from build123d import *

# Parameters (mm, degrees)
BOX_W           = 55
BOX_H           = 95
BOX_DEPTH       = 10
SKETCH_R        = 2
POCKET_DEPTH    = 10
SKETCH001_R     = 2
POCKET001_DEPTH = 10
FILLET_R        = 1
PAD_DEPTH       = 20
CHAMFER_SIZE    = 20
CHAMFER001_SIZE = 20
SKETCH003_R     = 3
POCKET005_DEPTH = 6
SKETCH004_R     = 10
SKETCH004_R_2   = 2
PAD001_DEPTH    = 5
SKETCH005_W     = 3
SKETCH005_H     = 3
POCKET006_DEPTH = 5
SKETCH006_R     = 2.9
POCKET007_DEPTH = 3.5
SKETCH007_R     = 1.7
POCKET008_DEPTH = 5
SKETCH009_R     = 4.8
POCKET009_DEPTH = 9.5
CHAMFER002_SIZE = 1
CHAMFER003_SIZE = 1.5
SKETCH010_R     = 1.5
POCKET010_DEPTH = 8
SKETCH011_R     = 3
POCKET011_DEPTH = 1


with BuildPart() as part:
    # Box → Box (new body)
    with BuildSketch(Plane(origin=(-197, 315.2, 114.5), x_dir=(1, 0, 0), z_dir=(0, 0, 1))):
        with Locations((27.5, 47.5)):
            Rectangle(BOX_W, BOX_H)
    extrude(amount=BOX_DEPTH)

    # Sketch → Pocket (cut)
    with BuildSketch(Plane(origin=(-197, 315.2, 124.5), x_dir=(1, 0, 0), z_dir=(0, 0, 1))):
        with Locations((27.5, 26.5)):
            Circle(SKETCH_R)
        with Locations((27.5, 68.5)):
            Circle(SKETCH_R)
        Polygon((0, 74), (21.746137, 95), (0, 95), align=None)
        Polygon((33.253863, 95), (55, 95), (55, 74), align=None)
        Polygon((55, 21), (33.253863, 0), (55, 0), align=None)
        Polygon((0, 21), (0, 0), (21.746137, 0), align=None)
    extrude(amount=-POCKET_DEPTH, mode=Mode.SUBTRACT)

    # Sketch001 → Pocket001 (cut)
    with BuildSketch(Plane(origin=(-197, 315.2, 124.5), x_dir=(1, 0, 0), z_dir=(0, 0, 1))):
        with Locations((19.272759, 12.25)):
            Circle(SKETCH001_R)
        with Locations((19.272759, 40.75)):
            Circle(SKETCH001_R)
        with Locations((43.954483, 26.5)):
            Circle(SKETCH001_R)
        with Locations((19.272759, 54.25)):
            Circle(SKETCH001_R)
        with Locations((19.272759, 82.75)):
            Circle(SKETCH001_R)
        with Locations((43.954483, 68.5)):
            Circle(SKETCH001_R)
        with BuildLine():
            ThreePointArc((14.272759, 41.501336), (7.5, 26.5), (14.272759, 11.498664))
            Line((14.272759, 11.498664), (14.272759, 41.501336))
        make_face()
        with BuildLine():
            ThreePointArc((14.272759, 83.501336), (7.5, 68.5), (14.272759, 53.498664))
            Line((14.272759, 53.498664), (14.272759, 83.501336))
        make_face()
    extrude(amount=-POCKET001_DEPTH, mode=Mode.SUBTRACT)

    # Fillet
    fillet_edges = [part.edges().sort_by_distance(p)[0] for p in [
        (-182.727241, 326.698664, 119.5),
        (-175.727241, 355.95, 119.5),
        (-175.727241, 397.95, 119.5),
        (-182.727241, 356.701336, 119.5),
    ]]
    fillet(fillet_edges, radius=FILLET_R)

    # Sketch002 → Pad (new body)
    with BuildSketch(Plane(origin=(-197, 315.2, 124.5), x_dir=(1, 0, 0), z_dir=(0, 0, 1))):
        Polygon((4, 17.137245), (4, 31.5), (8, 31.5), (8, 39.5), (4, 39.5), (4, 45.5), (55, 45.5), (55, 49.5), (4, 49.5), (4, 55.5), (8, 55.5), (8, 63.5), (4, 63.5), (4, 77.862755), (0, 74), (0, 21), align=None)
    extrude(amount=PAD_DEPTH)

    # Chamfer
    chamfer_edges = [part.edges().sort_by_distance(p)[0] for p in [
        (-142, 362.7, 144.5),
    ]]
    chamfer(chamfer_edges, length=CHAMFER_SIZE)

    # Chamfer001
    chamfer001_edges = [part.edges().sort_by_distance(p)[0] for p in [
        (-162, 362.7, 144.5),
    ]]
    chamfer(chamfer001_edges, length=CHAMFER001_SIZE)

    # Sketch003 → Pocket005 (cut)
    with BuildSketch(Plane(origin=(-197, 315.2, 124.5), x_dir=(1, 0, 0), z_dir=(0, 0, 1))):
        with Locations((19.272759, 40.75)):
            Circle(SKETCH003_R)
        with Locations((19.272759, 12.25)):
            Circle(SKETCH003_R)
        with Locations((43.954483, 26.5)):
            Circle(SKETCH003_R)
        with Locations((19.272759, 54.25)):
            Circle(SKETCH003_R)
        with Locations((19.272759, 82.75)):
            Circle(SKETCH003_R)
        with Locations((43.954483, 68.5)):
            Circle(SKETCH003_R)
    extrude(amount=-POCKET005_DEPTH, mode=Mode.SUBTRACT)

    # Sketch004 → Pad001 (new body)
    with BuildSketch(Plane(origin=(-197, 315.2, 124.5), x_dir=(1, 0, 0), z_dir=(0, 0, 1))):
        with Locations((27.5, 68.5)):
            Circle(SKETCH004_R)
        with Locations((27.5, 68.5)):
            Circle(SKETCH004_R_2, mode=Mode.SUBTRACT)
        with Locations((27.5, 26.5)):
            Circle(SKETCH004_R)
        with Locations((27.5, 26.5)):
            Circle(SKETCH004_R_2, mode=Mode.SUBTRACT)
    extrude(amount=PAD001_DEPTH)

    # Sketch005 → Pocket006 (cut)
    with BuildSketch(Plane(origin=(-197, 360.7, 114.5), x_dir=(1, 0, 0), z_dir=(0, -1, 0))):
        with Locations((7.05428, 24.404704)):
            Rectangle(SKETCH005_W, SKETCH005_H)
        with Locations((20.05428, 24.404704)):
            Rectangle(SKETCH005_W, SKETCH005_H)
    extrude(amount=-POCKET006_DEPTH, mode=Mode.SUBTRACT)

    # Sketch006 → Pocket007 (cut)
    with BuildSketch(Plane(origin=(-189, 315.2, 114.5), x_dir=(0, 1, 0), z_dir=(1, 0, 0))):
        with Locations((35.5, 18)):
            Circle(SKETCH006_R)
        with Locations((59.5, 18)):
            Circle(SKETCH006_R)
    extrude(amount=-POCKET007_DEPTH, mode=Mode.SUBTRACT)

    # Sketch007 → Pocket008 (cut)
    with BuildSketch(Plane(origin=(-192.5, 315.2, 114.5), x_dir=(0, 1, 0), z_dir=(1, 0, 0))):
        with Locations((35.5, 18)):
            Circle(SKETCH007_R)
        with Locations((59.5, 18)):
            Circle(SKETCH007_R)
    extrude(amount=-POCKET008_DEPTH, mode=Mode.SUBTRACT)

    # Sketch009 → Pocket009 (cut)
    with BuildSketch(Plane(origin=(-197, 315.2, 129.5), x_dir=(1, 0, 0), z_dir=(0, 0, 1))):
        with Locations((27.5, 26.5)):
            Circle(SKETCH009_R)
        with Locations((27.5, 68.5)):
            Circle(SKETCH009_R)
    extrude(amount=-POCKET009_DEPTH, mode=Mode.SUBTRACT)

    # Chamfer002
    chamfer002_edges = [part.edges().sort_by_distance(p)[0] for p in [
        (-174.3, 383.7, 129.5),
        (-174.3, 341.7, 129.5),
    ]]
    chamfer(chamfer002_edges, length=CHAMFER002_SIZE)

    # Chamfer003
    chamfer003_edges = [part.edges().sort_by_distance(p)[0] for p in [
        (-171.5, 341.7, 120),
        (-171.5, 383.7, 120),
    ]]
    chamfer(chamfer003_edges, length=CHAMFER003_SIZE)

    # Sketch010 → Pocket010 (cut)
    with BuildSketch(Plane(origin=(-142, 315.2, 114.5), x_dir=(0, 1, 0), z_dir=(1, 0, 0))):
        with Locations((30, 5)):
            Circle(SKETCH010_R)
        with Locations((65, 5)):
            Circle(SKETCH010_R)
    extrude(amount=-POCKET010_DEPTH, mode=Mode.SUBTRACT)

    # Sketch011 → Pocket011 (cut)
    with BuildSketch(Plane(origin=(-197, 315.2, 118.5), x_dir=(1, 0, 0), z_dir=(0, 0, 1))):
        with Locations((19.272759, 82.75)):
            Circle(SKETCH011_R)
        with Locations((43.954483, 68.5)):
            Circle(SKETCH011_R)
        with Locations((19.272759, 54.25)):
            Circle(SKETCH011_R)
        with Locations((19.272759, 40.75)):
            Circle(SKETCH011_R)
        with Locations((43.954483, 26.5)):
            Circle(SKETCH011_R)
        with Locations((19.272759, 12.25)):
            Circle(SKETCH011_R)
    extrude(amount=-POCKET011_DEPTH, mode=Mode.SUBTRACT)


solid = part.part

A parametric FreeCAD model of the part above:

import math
import FreeCAD as App
import Part
import Sketcher

V = App.Vector
Q = App.Units.Quantity


def edges_at(feature, points):
    """Names of the edges that pass closest to the given points."""
    edges = feature.Shape.Edges
    near = lambda p: min(range(len(edges)), key=lambda i: edges[i].distToShape(Part.Vertex(*p))[0])
    return sorted({f"Edge{near(p) + 1}" for p in points})

doc = App.newDocument("Part")
body = doc.addObject("PartDesign::Body", "Body")

# Sketch on XY plane
sketch1 = body.newObject("Sketcher::SketchObject", "Sketch")
sketch1.AttachmentSupport = (doc.getObject("XY_Plane"), [""])
sketch1.MapMode = "FlatFace"
sketch1.AttachmentOffset = App.Placement(V(0, 0, 114.5), App.Rotation())
sketch1.addGeometry(Part.LineSegment(V(-197, 410, 0), V(-197, 315, 0)), False)
sketch1.addGeometry(Part.LineSegment(V(-197, 315, 0), V(-142, 315, 0)), False)
sketch1.addGeometry(Part.LineSegment(V(-142, 315, 0), V(-142, 410, 0)), False)
sketch1.addGeometry(Part.LineSegment(V(-142, 410, 0), V(-197, 410, 0)), False)
sketch1.addConstraint(Sketcher.Constraint("Coincident", 0, 2, 1, 1))
sketch1.addConstraint(Sketcher.Constraint("Coincident", 1, 2, 2, 1))
sketch1.addConstraint(Sketcher.Constraint("Coincident", 2, 2, 3, 1))
sketch1.addConstraint(Sketcher.Constraint("Coincident", 3, 2, 0, 1))
sketch1.addConstraint(Sketcher.Constraint("Vertical", 0))
sketch1.addConstraint(Sketcher.Constraint("Horizontal", 1))
sketch1.addConstraint(Sketcher.Constraint("Vertical", 2))
sketch1.addConstraint(Sketcher.Constraint("Horizontal", 3))
sketch1.addConstraint(Sketcher.Constraint("DistanceX", 1, 1, 1, 2, Q("55 mm")))
sketch1.addConstraint(Sketcher.Constraint("DistanceY", 0, 2, 0, 1, Q("95 mm")))
sketch1.addConstraint(Sketcher.Constraint("DistanceX", 0, 2, -1, 1, Q("197 mm")))
sketch1.addConstraint(Sketcher.Constraint("DistanceY", -1, 1, 0, 2, Q("315.2 mm")))
pad1 = body.newObject("PartDesign::Pad", "Pad")
pad1.Profile = sketch1
pad1.Length = 10

# Sketch on XY plane
sketch2 = body.newObject("Sketcher::SketchObject", "Sketch001")
sketch2.AttachmentSupport = (doc.getObject("XY_Plane"), [""])
sketch2.MapMode = "FlatFace"
sketch2.AttachmentOffset = App.Placement(V(0, 0, 124.5), App.Rotation())
sketch2.addGeometry(Part.Circle(V(-169.5, 341.7, 0), V(0, 0, 1), 2), False)
sketch2.addGeometry(Part.Circle(V(-169.5, 383.7, 0), V(0, 0, 1), 2), False)
sketch2.addGeometry(Part.LineSegment(V(-197, 389.2, 0), V(-175.3, 410.2, 0)), False)
sketch2.addGeometry(Part.LineSegment(V(-175.3, 410.2, 0), V(-197, 410.2, 0)), False)
sketch2.addGeometry(Part.LineSegment(V(-197, 410.2, 0), V(-197, 389.2, 0)), False)
sketch2.addGeometry(Part.LineSegment(V(-142, 410.2, 0), V(-163.7, 410.2, 0)), False)
sketch2.addGeometry(Part.LineSegment(V(-163.7, 410.2, 0), V(-142, 389.2, 0)), False)
sketch2.addGeometry(Part.LineSegment(V(-142, 389.2, 0), V(-142, 410.2, 0)), False)
sketch2.addGeometry(Part.LineSegment(V(-142, 336.2, 0), V(-163.7, 315.2, 0)), False)
sketch2.addGeometry(Part.LineSegment(V(-163.7, 315.2, 0), V(-142, 315.2, 0)), False)
sketch2.addGeometry(Part.LineSegment(V(-142, 315.2, 0), V(-142, 336.2, 0)), False)
sketch2.addGeometry(Part.LineSegment(V(-197, 336.2, 0), V(-197, 315.2, 0)), False)
sketch2.addGeometry(Part.LineSegment(V(-197, 315.2, 0), V(-175.3, 315.2, 0)), False)
sketch2.addGeometry(Part.LineSegment(V(-175.3, 315.2, 0), V(-197, 336.2, 0)), False)
sketch2.addConstraint(Sketcher.Constraint("Coincident", 2, 2, 3, 1))
sketch2.addConstraint(Sketcher.Constraint("Coincident", 3, 2, 4, 1))
sketch2.addConstraint(Sketcher.Constraint("Coincident", 4, 2, 2, 1))
sketch2.addConstraint(Sketcher.Constraint("Coincident", 5, 2, 6, 1))
sketch2.addConstraint(Sketcher.Constraint("Coincident", 6, 2, 7, 1))
sketch2.addConstraint(Sketcher.Constraint("Coincident", 7, 2, 5, 1))
sketch2.addConstraint(Sketcher.Constraint("Coincident", 8, 2, 9, 1))
sketch2.addConstraint(Sketcher.Constraint("Coincident", 9, 2, 10, 1))
sketch2.addConstraint(Sketcher.Constraint("Coincident", 10, 2, 8, 1))
sketch2.addConstraint(Sketcher.Constraint("Coincident", 11, 2, 12, 1))
sketch2.addConstraint(Sketcher.Constraint("Coincident", 12, 2, 13, 1))
sketch2.addConstraint(Sketcher.Constraint("Coincident", 13, 2, 11, 1))
sketch2.addConstraint(Sketcher.Constraint("Horizontal", 3))
sketch2.addConstraint(Sketcher.Constraint("Vertical", 4))
sketch2.addConstraint(Sketcher.Constraint("Horizontal", 5))
sketch2.addConstraint(Sketcher.Constraint("Vertical", 7))
sketch2.addConstraint(Sketcher.Constraint("Horizontal", 9))
sketch2.addConstraint(Sketcher.Constraint("Vertical", 10))
sketch2.addConstraint(Sketcher.Constraint("Vertical", 11))
sketch2.addConstraint(Sketcher.Constraint("Horizontal", 12))
sketch2.addConstraint(Sketcher.Constraint("Equal", 0, 1))
sketch2.addConstraint(Sketcher.Constraint("Parallel", 2, 8))
sketch2.addConstraint(Sketcher.Constraint("Parallel", 6, 13))
sketch2.addConstraint(Sketcher.Constraint("Horizontal", 3, 2, 5, 2))
sketch2.addConstraint(Sketcher.Constraint("Horizontal", 4, 2, 6, 2))
sketch2.addConstraint(Sketcher.Constraint("Horizontal", 9, 2, 11, 2))
sketch2.addConstraint(Sketcher.Constraint("Horizontal", 10, 2, 13, 2))
sketch2.addConstraint(Sketcher.Constraint("Vertical", 0, 3, 1, 3))
sketch2.addConstraint(Sketcher.Constraint("Vertical", 5, 2, 8, 2))
sketch2.addConstraint(Sketcher.Constraint("Vertical", 7, 2, 9, 2))
sketch2.addConstraint(Sketcher.Constraint("Vertical", 4, 2, 11, 2))
sketch2.addConstraint(Sketcher.Constraint("Vertical", 2, 2, 12, 2))
sketch2.addConstraint(Sketcher.Constraint("Diameter", 0, Q("4 mm")))
sketch2.addConstraint(Sketcher.Constraint("DistanceY", 4, 2, 4, 1, Q("21 mm")))
sketch2.addConstraint(Sketcher.Constraint("Angle", 2, Q("43.999999 deg")))
sketch2.addConstraint(Sketcher.Constraint("DistanceX", 3, 2, -1, 1, Q("197 mm")))
sketch2.addConstraint(Sketcher.Constraint("DistanceX", 6, 2, -1, 1, Q("142 mm")))
sketch2.addConstraint(Sketcher.Constraint("DistanceY", 0, 3, 1, 3, Q("42 mm")))
sketch2.addConstraint(Sketcher.Constraint("DistanceY", 8, 2, 6, 2, Q("74 mm")))
sketch2.addConstraint(Sketcher.Constraint("DistanceX", 0, 3, -1, 1, Q("169.5 mm")))
sketch2.addConstraint(Sketcher.Constraint("DistanceY", -1, 1, 0, 3, Q("341.7 mm")))
sketch2.addConstraint(Sketcher.Constraint("DistanceY", -1, 1, 2, 2, Q("410.2 mm")))
pocket1 = body.newObject("PartDesign::Pocket", "Pocket")
pocket1.Profile = sketch2
pocket1.Length = 10

# Sketch on XY plane
sketch3 = body.newObject("Sketcher::SketchObject", "Sketch002")
sketch3.AttachmentSupport = (doc.getObject("XY_Plane"), [""])
sketch3.MapMode = "FlatFace"
sketch3.AttachmentOffset = App.Placement(V(0, 0, 124.5), App.Rotation())
sketch3.addGeometry(Part.Circle(V(-177.7, 327.4, 0), V(0, 0, 1), 2), False)
sketch3.addGeometry(Part.Circle(V(-177.7, 355.9, 0), V(0, 0, 1), 2), False)
sketch3.addGeometry(Part.Circle(V(-153, 341.7, 0), V(0, 0, 1), 2), False)
sketch3.addGeometry(Part.Circle(V(-177.7, 369.4, 0), V(0, 0, 1), 2), False)
sketch3.addGeometry(Part.Circle(V(-177.7, 397.9, 0), V(0, 0, 1), 2), False)
sketch3.addGeometry(Part.Circle(V(-153, 383.7, 0), V(0, 0, 1), 2), False)
sketch3.addGeometry(Part.ArcOfCircle(Part.Circle(V(-169.5, 341.7, 0), V(0, 0, 1), 20), math.radians(131), math.radians(229)), False)
sketch3.addGeometry(Part.LineSegment(V(-182.7, 326.7, 0), V(-182.7, 356.7, 0)), False)
sketch3.addGeometry(Part.ArcOfCircle(Part.Circle(V(-169.5, 383.7, 0), V(0, 0, 1), 20), math.radians(131), math.radians(229)), False)
sketch3.addGeometry(Part.LineSegment(V(-182.7, 368.7, 0), V(-182.7, 398.7, 0)), False)
sketch3.addConstraint(Sketcher.Constraint("Coincident", 6, 1, 7, 2))
sketch3.addConstraint(Sketcher.Constraint("Coincident", 7, 1, 6, 2))
sketch3.addConstraint(Sketcher.Constraint("Coincident", 8, 1, 9, 2))
sketch3.addConstraint(Sketcher.Constraint("Coincident", 9, 1, 8, 2))
sketch3.addConstraint(Sketcher.Constraint("Vertical", 7))
sketch3.addConstraint(Sketcher.Constraint("Vertical", 9))
sketch3.addConstraint(Sketcher.Constraint("Equal", 0, 1))
sketch3.addConstraint(Sketcher.Constraint("Equal", 1, 2))
sketch3.addConstraint(Sketcher.Constraint("Equal", 2, 3))
sketch3.addConstraint(Sketcher.Constraint("Equal", 3, 4))
sketch3.addConstraint(Sketcher.Constraint("Equal", 4, 5))
sketch3.addConstraint(Sketcher.Constraint("Equal", 6, 8))
sketch3.addConstraint(Sketcher.Constraint("Horizontal", 2, 3, 6, 3))
sketch3.addConstraint(Sketcher.Constraint("Horizontal", 5, 3, 8, 3))
sketch3.addConstraint(Sketcher.Constraint("Vertical", 0, 3, 1, 3))
sketch3.addConstraint(Sketcher.Constraint("Vertical", 1, 3, 3, 3))
sketch3.addConstraint(Sketcher.Constraint("Vertical", 3, 3, 4, 3))
sketch3.addConstraint(Sketcher.Constraint("Vertical", 2, 3, 5, 3))
sketch3.addConstraint(Sketcher.Constraint("Vertical", 6, 3, 8, 3))
sketch3.addConstraint(Sketcher.Constraint("Vertical", 7, 1, 8, 1))
sketch3.addConstraint(Sketcher.Constraint("Diameter", 0, Q("4 mm")))
sketch3.addConstraint(Sketcher.Constraint("Radius", 6, Q("19.999999 mm")))
sketch3.addConstraint(Sketcher.Constraint("DistanceY", 0, 3, 3, 3, Q("42 mm")))
sketch3.addConstraint(Sketcher.Constraint("DistanceY", 1, 3, 4, 3, Q("42 mm")))
sketch3.addConstraint(Sketcher.Constraint("DistanceY", 2, 3, 5, 3, Q("42 mm")))
sketch3.addConstraint(Sketcher.Constraint("DistanceX", 6, 1, 1, 3, Q("5 mm")))
sketch3.addConstraint(Sketcher.Constraint("DistanceY", -1, 1, 2, 3, Q("341.7 mm")))
sketch3.addConstraint(Sketcher.Constraint("DistanceX", 6, 3, -1, 1, Q("169.500001 mm")))
sketch3.addConstraint(Sketcher.Constraint("DistanceY", 0, 3, 1, 3, Q("28.5 mm")))
sketch3.addConstraint(Sketcher.Constraint("DistanceY", -1, 1, 0, 3, Q("327.45 mm")))
sketch3.addConstraint(Sketcher.Constraint("DistanceY", 7, 1, 7, 2, Q("30.002672 mm")))
sketch3.addConstraint(Sketcher.Constraint("DistanceX", 2, 3, -1, 1, Q("153.045517 mm")))
pocket2 = body.newObject("PartDesign::Pocket", "Pocket001")
pocket2.Profile = sketch3
pocket2.Length = 10
doc.recompute()

fillet = body.newObject("PartDesign::Fillet", "Fillet")
fillet.Base = (pocket2, edges_at(pocket2, [
    (-182.727, 326.699, 119.5),
    (-175.727, 355.95, 119.5),
    (-175.727, 397.95, 119.5),
    (-182.727, 356.701, 119.5),
]))
fillet.Radius = 1

# Sketch on XY plane
sketch4 = body.newObject("Sketcher::SketchObject", "Sketch003")
sketch4.AttachmentSupport = (doc.getObject("XY_Plane"), [""])
sketch4.MapMode = "FlatFace"
sketch4.AttachmentOffset = App.Placement(V(0, 0, 124.5), App.Rotation())
sketch4.addGeometry(Part.LineSegment(V(-193, 332.3, 0), V(-193, 346.7, 0)), False)
sketch4.addGeometry(Part.LineSegment(V(-193, 346.7, 0), V(-189, 346.7, 0)), False)
sketch4.addGeometry(Part.LineSegment(V(-189, 346.7, 0), V(-189, 354.7, 0)), False)
sketch4.addGeometry(Part.LineSegment(V(-189, 354.7, 0), V(-193, 354.7, 0)), False)
sketch4.addGeometry(Part.LineSegment(V(-193, 354.7, 0), V(-193, 360.7, 0)), False)
sketch4.addGeometry(Part.LineSegment(V(-193, 360.7, 0), V(-142, 360.7, 0)), False)
sketch4.addGeometry(Part.LineSegment(V(-142, 360.7, 0), V(-142, 364.7, 0)), False)
sketch4.addGeometry(Part.LineSegment(V(-142, 364.7, 0), V(-193, 364.7, 0)), False)
sketch4.addGeometry(Part.LineSegment(V(-193, 364.7, 0), V(-193, 370.7, 0)), False)
sketch4.addGeometry(Part.LineSegment(V(-193, 370.7, 0), V(-189, 370.7, 0)), False)
sketch4.addGeometry(Part.LineSegment(V(-189, 370.7, 0), V(-189, 378.7, 0)), False)
sketch4.addGeometry(Part.LineSegment(V(-189, 378.7, 0), V(-193, 378.7, 0)), False)
sketch4.addGeometry(Part.LineSegment(V(-193, 378.7, 0), V(-193, 393.1, 0)), False)
sketch4.addGeometry(Part.LineSegment(V(-193, 393.1, 0), V(-197, 389.2, 0)), False)
sketch4.addGeometry(Part.LineSegment(V(-197, 389.2, 0), V(-197, 336.2, 0)), False)
sketch4.addGeometry(Part.LineSegment(V(-197, 336.2, 0), V(-193, 332.3, 0)), False)
sketch4.addConstraint(Sketcher.Constraint("Coincident", 0, 2, 1, 1))
sketch4.addConstraint(Sketcher.Constraint("Coincident", 1, 2, 2, 1))
sketch4.addConstraint(Sketcher.Constraint("Coincident", 2, 2, 3, 1))
sketch4.addConstraint(Sketcher.Constraint("Coincident", 3, 2, 4, 1))
sketch4.addConstraint(Sketcher.Constraint("Coincident", 4, 2, 5, 1))
sketch4.addConstraint(Sketcher.Constraint("Coincident", 5, 2, 6, 1))
sketch4.addConstraint(Sketcher.Constraint("Coincident", 6, 2, 7, 1))
sketch4.addConstraint(Sketcher.Constraint("Coincident", 7, 2, 8, 1))
sketch4.addConstraint(Sketcher.Constraint("Coincident", 8, 2, 9, 1))
sketch4.addConstraint(Sketcher.Constraint("Coincident", 9, 2, 10, 1))
sketch4.addConstraint(Sketcher.Constraint("Coincident", 10, 2, 11, 1))
sketch4.addConstraint(Sketcher.Constraint("Coincident", 11, 2, 12, 1))
sketch4.addConstraint(Sketcher.Constraint("Coincident", 12, 2, 13, 1))
sketch4.addConstraint(Sketcher.Constraint("Coincident", 13, 2, 14, 1))
sketch4.addConstraint(Sketcher.Constraint("Coincident", 14, 2, 15, 1))
sketch4.addConstraint(Sketcher.Constraint("Coincident", 15, 2, 0, 1))
sketch4.addConstraint(Sketcher.Constraint("Vertical", 0))
sketch4.addConstraint(Sketcher.Constraint("Horizontal", 1))
sketch4.addConstraint(Sketcher.Constraint("Vertical", 2))
sketch4.addConstraint(Sketcher.Constraint("Horizontal", 3))
sketch4.addConstraint(Sketcher.Constraint("Vertical", 4))
sketch4.addConstraint(Sketcher.Constraint("Horizontal", 5))
sketch4.addConstraint(Sketcher.Constraint("Vertical", 6))
sketch4.addConstraint(Sketcher.Constraint("Horizontal", 7))
sketch4.addConstraint(Sketcher.Constraint("Vertical", 8))
sketch4.addConstraint(Sketcher.Constraint("Horizontal", 9))
sketch4.addConstraint(Sketcher.Constraint("Vertical", 10))
sketch4.addConstraint(Sketcher.Constraint("Horizontal", 11))
sketch4.addConstraint(Sketcher.Constraint("Vertical", 12))
sketch4.addConstraint(Sketcher.Constraint("Vertical", 14))
sketch4.addConstraint(Sketcher.Constraint("Vertical", 0, 2, 3, 2))
sketch4.addConstraint(Sketcher.Constraint("Vertical", 4, 2, 7, 2))
sketch4.addConstraint(Sketcher.Constraint("Vertical", 2, 2, 9, 2))
sketch4.addConstraint(Sketcher.Constraint("Vertical", 8, 2, 11, 2))
sketch4.addConstraint(Sketcher.Constraint("Equal", 11, 6))
sketch4.addConstraint(Sketcher.Constraint("Equal", 4, 8))
sketch4.addConstraint(Sketcher.Constraint("Equal", 2, 10))
sketch4.addConstraint(Sketcher.Constraint("Equal", 0, 12))
sketch4.addConstraint(Sketcher.Constraint("Equal", 13, 15))
sketch4.addConstraint(Sketcher.Constraint("DistanceX", 1, 1, 1, 2, Q("4 mm")))
sketch4.addConstraint(Sketcher.Constraint("DistanceX", 5, 1, 5, 2, Q("51 mm")))
sketch4.addConstraint(Sketcher.Constraint("DistanceY", 2, 1, 2, 2, Q("8 mm")))
sketch4.addConstraint(Sketcher.Constraint("DistanceY", 4, 1, 4, 2, Q("6 mm")))
sketch4.addConstraint(Sketcher.Constraint("DistanceY", 14, 2, 14, 1, Q("53 mm")))
sketch4.addConstraint(Sketcher.Constraint("Angle", 13, Q("-136.000001 deg")))
sketch4.addConstraint(Sketcher.Constraint("DistanceX", 0, 2, -1, 1, Q("193 mm")))
sketch4.addConstraint(Sketcher.Constraint("DistanceX", 13, 2, -1, 1, Q("197 mm")))
sketch4.addConstraint(Sketcher.Constraint("DistanceY", -1, 1, 0, 2, Q("346.7 mm")))
pad2 = body.newObject("PartDesign::Pad", "Pad001")
pad2.Profile = sketch4
pad2.Length = 20
doc.recompute()

chamfer = body.newObject("PartDesign::Chamfer", "Chamfer")
chamfer.Base = (pad2, edges_at(pad2, [(-142, 362.7, 144.5)]))
chamfer.Size = 20
doc.recompute()

chamfer2 = body.newObject("PartDesign::Chamfer", "Chamfer001")
chamfer2.Base = (chamfer, edges_at(chamfer, [(-162, 362.7, 144.5)]))
chamfer2.Size = 20

# Sketch on XY plane
sketch5 = body.newObject("Sketcher::SketchObject", "Sketch004")
sketch5.AttachmentSupport = (doc.getObject("XY_Plane"), [""])
sketch5.MapMode = "FlatFace"
sketch5.AttachmentOffset = App.Placement(V(0, 0, 124.5), App.Rotation())
sketch5.addGeometry(Part.Circle(V(-177.7, 355.9, 0), V(0, 0, 1), 3), False)
sketch5.addGeometry(Part.Circle(V(-177.7, 327.4, 0), V(0, 0, 1), 3), False)
sketch5.addGeometry(Part.Circle(V(-153, 341.7, 0), V(0, 0, 1), 3), False)
sketch5.addGeometry(Part.Circle(V(-177.7, 369.4, 0), V(0, 0, 1), 3), False)
sketch5.addGeometry(Part.Circle(V(-177.7, 397.9, 0), V(0, 0, 1), 3), False)
sketch5.addGeometry(Part.Circle(V(-153, 383.7, 0), V(0, 0, 1), 3), False)
sketch5.addConstraint(Sketcher.Constraint("Equal", 0, 1))
sketch5.addConstraint(Sketcher.Constraint("Equal", 1, 2))
sketch5.addConstraint(Sketcher.Constraint("Equal", 2, 3))
sketch5.addConstraint(Sketcher.Constraint("Equal", 3, 4))
sketch5.addConstraint(Sketcher.Constraint("Equal", 4, 5))
sketch5.addConstraint(Sketcher.Constraint("Vertical", 0, 3, 1, 3))
sketch5.addConstraint(Sketcher.Constraint("Vertical", 1, 3, 3, 3))
sketch5.addConstraint(Sketcher.Constraint("Vertical", 3, 3, 4, 3))
sketch5.addConstraint(Sketcher.Constraint("Vertical", 2, 3, 5, 3))
sketch5.addConstraint(Sketcher.Constraint("Diameter", 0, Q("6 mm")))
sketch5.addConstraint(Sketcher.Constraint("DistanceY", 1, 3, 3, 3, Q("42 mm")))
sketch5.addConstraint(Sketcher.Constraint("DistanceY", 0, 3, 4, 3, Q("42 mm")))
sketch5.addConstraint(Sketcher.Constraint("DistanceY", 2, 3, 5, 3, Q("42 mm")))
sketch5.addConstraint(Sketcher.Constraint("DistanceY", -1, 1, 2, 3, Q("341.7 mm")))
sketch5.addConstraint(Sketcher.Constraint("DistanceY", 1, 3, 0, 3, Q("28.5 mm")))
sketch5.addConstraint(Sketcher.Constraint("DistanceY", -1, 1, 0, 3, Q("355.95 mm")))
sketch5.addConstraint(Sketcher.Constraint("DistanceX", 0, 3, -1, 1, Q("177.727241 mm")))
sketch5.addConstraint(Sketcher.Constraint("DistanceX", 2, 3, -1, 1, Q("153.045517 mm")))
pocket3 = body.newObject("PartDesign::Pocket", "Pocket002")
pocket3.Profile = sketch5
pocket3.Length = 6

# Sketch on XY plane
sketch6 = body.newObject("Sketcher::SketchObject", "Sketch005")
sketch6.AttachmentSupport = (doc.getObject("XY_Plane"), [""])
sketch6.MapMode = "FlatFace"
sketch6.AttachmentOffset = App.Placement(V(0, 0, 124.5), App.Rotation())
sketch6.addGeometry(Part.Circle(V(-169.5, 383.7, 0), V(0, 0, 1), 10), False)
sketch6.addGeometry(Part.Circle(V(-169.5, 383.7, 0), V(0, 0, 1), 2), False)
sketch6.addGeometry(Part.Circle(V(-169.5, 341.7, 0), V(0, 0, 1), 10), False)
sketch6.addGeometry(Part.Circle(V(-169.5, 341.7, 0), V(0, 0, 1), 2), False)
sketch6.addConstraint(Sketcher.Constraint("Coincident", 1, 3, 0, 3))
sketch6.addConstraint(Sketcher.Constraint("Coincident", 3, 3, 2, 3))
sketch6.addConstraint(Sketcher.Constraint("Equal", 0, 2))
sketch6.addConstraint(Sketcher.Constraint("Equal", 1, 3))
sketch6.addConstraint(Sketcher.Constraint("Vertical", 1, 3, 2, 3))
sketch6.addConstraint(Sketcher.Constraint("Diameter", 0, Q("20 mm")))
sketch6.addConstraint(Sketcher.Constraint("Diameter", 1, Q("4 mm")))
sketch6.addConstraint(Sketcher.Constraint("DistanceY", 2, 3, 0, 3, Q("42 mm")))
sketch6.addConstraint(Sketcher.Constraint("DistanceX", 0, 3, -1, 1, Q("169.5 mm")))
sketch6.addConstraint(Sketcher.Constraint("DistanceY", -1, 1, 0, 3, Q("383.7 mm")))
pad3 = body.newObject("PartDesign::Pad", "Pad002")
pad3.Profile = sketch6
pad3.Length = 5

# Sketch on XZ plane
sketch7 = body.newObject("Sketcher::SketchObject", "Sketch006")
sketch7.AttachmentSupport = (doc.getObject("XZ_Plane"), [""])
sketch7.MapMode = "FlatFace"
sketch7.AttachmentOffset = App.Placement(V(0, 0, -360.7), App.Rotation())
sketch7.addGeometry(Part.LineSegment(V(-191.4, 140.4, 0), V(-191.4, 137.4, 0)), False)
sketch7.addGeometry(Part.LineSegment(V(-191.4, 137.4, 0), V(-188.4, 137.4, 0)), False)
sketch7.addGeometry(Part.LineSegment(V(-188.4, 137.4, 0), V(-188.4, 140.4, 0)), False)
sketch7.addGeometry(Part.LineSegment(V(-188.4, 140.4, 0), V(-191.4, 140.4, 0)), False)
sketch7.addGeometry(Part.LineSegment(V(-178.4, 140.4, 0), V(-178.4, 137.4, 0)), False)
sketch7.addGeometry(Part.LineSegment(V(-178.4, 137.4, 0), V(-175.4, 137.4, 0)), False)
sketch7.addGeometry(Part.LineSegment(V(-175.4, 137.4, 0), V(-175.4, 140.4, 0)), False)
sketch7.addGeometry(Part.LineSegment(V(-175.4, 140.4, 0), V(-178.4, 140.4, 0)), False)
sketch7.addConstraint(Sketcher.Constraint("Coincident", 0, 2, 1, 1))
sketch7.addConstraint(Sketcher.Constraint("Coincident", 1, 2, 2, 1))
sketch7.addConstraint(Sketcher.Constraint("Coincident", 2, 2, 3, 1))
sketch7.addConstraint(Sketcher.Constraint("Coincident", 3, 2, 0, 1))
sketch7.addConstraint(Sketcher.Constraint("Coincident", 4, 2, 5, 1))
sketch7.addConstraint(Sketcher.Constraint("Coincident", 5, 2, 6, 1))
sketch7.addConstraint(Sketcher.Constraint("Coincident", 6, 2, 7, 1))
sketch7.addConstraint(Sketcher.Constraint("Coincident", 7, 2, 4, 1))
sketch7.addConstraint(Sketcher.Constraint("Vertical", 0))
sketch7.addConstraint(Sketcher.Constraint("Horizontal", 1))
sketch7.addConstraint(Sketcher.Constraint("Vertical", 2))
sketch7.addConstraint(Sketcher.Constraint("Horizontal", 3))
sketch7.addConstraint(Sketcher.Constraint("Vertical", 4))
sketch7.addConstraint(Sketcher.Constraint("Horizontal", 5))
sketch7.addConstraint(Sketcher.Constraint("Vertical", 6))
sketch7.addConstraint(Sketcher.Constraint("Horizontal", 7))
sketch7.addConstraint(Sketcher.Constraint("Horizontal", 1, 2, 4, 2))
sketch7.addConstraint(Sketcher.Constraint("Horizontal", 3, 2, 6, 2))
sketch7.addConstraint(Sketcher.Constraint("Equal", 3, 5))
sketch7.addConstraint(Sketcher.Constraint("Equal", 7, 0))
sketch7.addConstraint(Sketcher.Constraint("DistanceX", 1, 1, 1, 2, Q("3 mm")))
sketch7.addConstraint(Sketcher.Constraint("DistanceX", 1, 2, 4, 2, Q("10 mm")))
sketch7.addConstraint(Sketcher.Constraint("DistanceX", 0, 2, -1, 1, Q("191.44572 mm")))
sketch7.addConstraint(Sketcher.Constraint("DistanceY", -1, 1, 0, 2, Q("137.404704 mm")))
pocket4 = body.newObject("PartDesign::Pocket", "Pocket003")
pocket4.Profile = sketch7
pocket4.Length = 5

# Sketch on YZ plane
sketch8 = body.newObject("Sketcher::SketchObject", "Sketch007")
sketch8.AttachmentSupport = (doc.getObject("YZ_Plane"), [""])
sketch8.MapMode = "FlatFace"
sketch8.AttachmentOffset = App.Placement(V(0, 0, -189), App.Rotation())
sketch8.addGeometry(Part.Circle(V(350.7, 132.5, 0), V(0, 0, 1), 2.9), False)
sketch8.addGeometry(Part.Circle(V(374.7, 132.5, 0), V(0, 0, 1), 2.9), False)
sketch8.addConstraint(Sketcher.Constraint("Equal", 0, 1))
sketch8.addConstraint(Sketcher.Constraint("Horizontal", 0, 3, 1, 3))
sketch8.addConstraint(Sketcher.Constraint("Diameter", 0, Q("5.8 mm")))
sketch8.addConstraint(Sketcher.Constraint("DistanceX", 0, 3, 1, 3, Q("24 mm")))
sketch8.addConstraint(Sketcher.Constraint("DistanceX", -1, 1, 0, 3, Q("350.7 mm")))
sketch8.addConstraint(Sketcher.Constraint("DistanceY", -1, 1, 0, 3, Q("132.5 mm")))
pocket5 = body.newObject("PartDesign::Pocket", "Pocket004")
pocket5.Profile = sketch8
pocket5.Length = 3.5

# Sketch on YZ plane
sketch9 = body.newObject("Sketcher::SketchObject", "Sketch008")
sketch9.AttachmentSupport = (doc.getObject("YZ_Plane"), [""])
sketch9.MapMode = "FlatFace"
sketch9.AttachmentOffset = App.Placement(V(0, 0, -192.5), App.Rotation())
sketch9.addGeometry(Part.Circle(V(350.7, 132.5, 0), V(0, 0, 1), 1.7), False)
sketch9.addGeometry(Part.Circle(V(374.7, 132.5, 0), V(0, 0, 1), 1.7), False)
sketch9.addConstraint(Sketcher.Constraint("Equal", 0, 1))
sketch9.addConstraint(Sketcher.Constraint("Horizontal", 0, 3, 1, 3))
sketch9.addConstraint(Sketcher.Constraint("Diameter", 0, Q("3.4 mm")))
sketch9.addConstraint(Sketcher.Constraint("DistanceX", 0, 3, 1, 3, Q("24 mm")))
sketch9.addConstraint(Sketcher.Constraint("DistanceX", -1, 1, 0, 3, Q("350.7 mm")))
sketch9.addConstraint(Sketcher.Constraint("DistanceY", -1, 1, 0, 3, Q("132.5 mm")))
pocket6 = body.newObject("PartDesign::Pocket", "Pocket005")
pocket6.Profile = sketch9
pocket6.Length = 5

# Sketch on XY plane
sketch10 = body.newObject("Sketcher::SketchObject", "Sketch009")
sketch10.AttachmentSupport = (doc.getObject("XY_Plane"), [""])
sketch10.MapMode = "FlatFace"
sketch10.AttachmentOffset = App.Placement(V(0, 0, 129.5), App.Rotation())
sketch10.addGeometry(Part.Circle(V(-169.5, 341.7, 0), V(0, 0, 1), 4.8), False)
sketch10.addGeometry(Part.Circle(V(-169.5, 383.7, 0), V(0, 0, 1), 4.8), False)
sketch10.addConstraint(Sketcher.Constraint("Equal", 0, 1))
sketch10.addConstraint(Sketcher.Constraint("Vertical", 0, 3, 1, 3))
sketch10.addConstraint(Sketcher.Constraint("Diameter", 0, Q("9.6 mm")))
sketch10.addConstraint(Sketcher.Constraint("DistanceY", 0, 3, 1, 3, Q("42 mm")))
sketch10.addConstraint(Sketcher.Constraint("DistanceX", 0, 3, -1, 1, Q("169.5 mm")))
sketch10.addConstraint(Sketcher.Constraint("DistanceY", -1, 1, 0, 3, Q("341.7 mm")))
pocket7 = body.newObject("PartDesign::Pocket", "Pocket006")
pocket7.Profile = sketch10
pocket7.Length = 9.5
doc.recompute()

chamfer3 = body.newObject("PartDesign::Chamfer", "Chamfer002")
chamfer3.Base = (pocket7, edges_at(pocket7, [(-174.3, 383.7, 129.5), (-174.3, 341.7, 129.5)]))
chamfer3.Size = 1
doc.recompute()

chamfer4 = body.newObject("PartDesign::Chamfer", "Chamfer003")
chamfer4.Base = (chamfer3, edges_at(chamfer3, [(-171.5, 341.7, 120), (-171.5, 383.7, 120)]))
chamfer4.Size = 1.5

# Sketch on YZ plane
sketch11 = body.newObject("Sketcher::SketchObject", "Sketch010")
sketch11.AttachmentSupport = (doc.getObject("YZ_Plane"), [""])
sketch11.MapMode = "FlatFace"
sketch11.AttachmentOffset = App.Placement(V(0, 0, -142), App.Rotation())
sketch11.addGeometry(Part.Circle(V(345.2, 119.5, 0), V(0, 0, 1), 1.5), False)
sketch11.addGeometry(Part.Circle(V(380.2, 119.5, 0), V(0, 0, 1), 1.5), False)
sketch11.addConstraint(Sketcher.Constraint("Equal", 0, 1))
sketch11.addConstraint(Sketcher.Constraint("Horizontal", 0, 3, 1, 3))
sketch11.addConstraint(Sketcher.Constraint("Diameter", 0, Q("3 mm")))
sketch11.addConstraint(Sketcher.Constraint("DistanceX", 0, 3, 1, 3, Q("35 mm")))
sketch11.addConstraint(Sketcher.Constraint("DistanceX", -1, 1, 0, 3, Q("345.2 mm")))
sketch11.addConstraint(Sketcher.Constraint("DistanceY", -1, 1, 0, 3, Q("119.5 mm")))
pocket8 = body.newObject("PartDesign::Pocket", "Pocket007")
pocket8.Profile = sketch11
pocket8.Length = 8

# Sketch on XY plane
sketch12 = body.newObject("Sketcher::SketchObject", "Sketch011")
sketch12.AttachmentSupport = (doc.getObject("XY_Plane"), [""])
sketch12.MapMode = "FlatFace"
sketch12.AttachmentOffset = App.Placement(V(0, 0, 118.5), App.Rotation())
sketch12.addGeometry(Part.Circle(V(-177.7, 397.9, 0), V(0, 0, 1), 3), False)
sketch12.addGeometry(Part.Circle(V(-153, 383.7, 0), V(0, 0, 1), 3), False)
sketch12.addGeometry(Part.Circle(V(-177.7, 369.4, 0), V(0, 0, 1), 3), False)
sketch12.addGeometry(Part.Circle(V(-177.7, 355.9, 0), V(0, 0, 1), 3), False)
sketch12.addGeometry(Part.Circle(V(-153, 341.7, 0), V(0, 0, 1), 3), False)
sketch12.addGeometry(Part.Circle(V(-177.7, 327.4, 0), V(0, 0, 1), 3), False)
sketch12.addConstraint(Sketcher.Constraint("Equal", 0, 1))
sketch12.addConstraint(Sketcher.Constraint("Equal", 1, 2))
sketch12.addConstraint(Sketcher.Constraint("Equal", 2, 3))
sketch12.addConstraint(Sketcher.Constraint("Equal", 3, 4))
sketch12.addConstraint(Sketcher.Constraint("Equal", 4, 5))
sketch12.addConstraint(Sketcher.Constraint("Vertical", 0, 3, 2, 3))
sketch12.addConstraint(Sketcher.Constraint("Vertical", 2, 3, 3, 3))
sketch12.addConstraint(Sketcher.Constraint("Vertical", 1, 3, 4, 3))
sketch12.addConstraint(Sketcher.Constraint("Vertical", 3, 3, 5, 3))
sketch12.addConstraint(Sketcher.Constraint("Diameter", 0, Q("6 mm")))
sketch12.addConstraint(Sketcher.Constraint("DistanceY", 3, 3, 0, 3, Q("42 mm")))
sketch12.addConstraint(Sketcher.Constraint("DistanceY", 4, 3, 1, 3, Q("42 mm")))
sketch12.addConstraint(Sketcher.Constraint("DistanceY", 5, 3, 2, 3, Q("42 mm")))
sketch12.addConstraint(Sketcher.Constraint("DistanceY", -1, 1, 1, 3, Q("383.7 mm")))
sketch12.addConstraint(Sketcher.Constraint("DistanceY", 2, 3, 0, 3, Q("28.5 mm")))
sketch12.addConstraint(Sketcher.Constraint("DistanceY", -1, 1, 0, 3, Q("397.95 mm")))
sketch12.addConstraint(Sketcher.Constraint("DistanceX", 0, 3, -1, 1, Q("177.727241 mm")))
sketch12.addConstraint(Sketcher.Constraint("DistanceX", 1, 3, -1, 1, Q("153.045517 mm")))
pocket9 = body.newObject("PartDesign::Pocket", "Pocket008")
pocket9.Profile = sketch12
pocket9.Length = 1

doc.recompute()
